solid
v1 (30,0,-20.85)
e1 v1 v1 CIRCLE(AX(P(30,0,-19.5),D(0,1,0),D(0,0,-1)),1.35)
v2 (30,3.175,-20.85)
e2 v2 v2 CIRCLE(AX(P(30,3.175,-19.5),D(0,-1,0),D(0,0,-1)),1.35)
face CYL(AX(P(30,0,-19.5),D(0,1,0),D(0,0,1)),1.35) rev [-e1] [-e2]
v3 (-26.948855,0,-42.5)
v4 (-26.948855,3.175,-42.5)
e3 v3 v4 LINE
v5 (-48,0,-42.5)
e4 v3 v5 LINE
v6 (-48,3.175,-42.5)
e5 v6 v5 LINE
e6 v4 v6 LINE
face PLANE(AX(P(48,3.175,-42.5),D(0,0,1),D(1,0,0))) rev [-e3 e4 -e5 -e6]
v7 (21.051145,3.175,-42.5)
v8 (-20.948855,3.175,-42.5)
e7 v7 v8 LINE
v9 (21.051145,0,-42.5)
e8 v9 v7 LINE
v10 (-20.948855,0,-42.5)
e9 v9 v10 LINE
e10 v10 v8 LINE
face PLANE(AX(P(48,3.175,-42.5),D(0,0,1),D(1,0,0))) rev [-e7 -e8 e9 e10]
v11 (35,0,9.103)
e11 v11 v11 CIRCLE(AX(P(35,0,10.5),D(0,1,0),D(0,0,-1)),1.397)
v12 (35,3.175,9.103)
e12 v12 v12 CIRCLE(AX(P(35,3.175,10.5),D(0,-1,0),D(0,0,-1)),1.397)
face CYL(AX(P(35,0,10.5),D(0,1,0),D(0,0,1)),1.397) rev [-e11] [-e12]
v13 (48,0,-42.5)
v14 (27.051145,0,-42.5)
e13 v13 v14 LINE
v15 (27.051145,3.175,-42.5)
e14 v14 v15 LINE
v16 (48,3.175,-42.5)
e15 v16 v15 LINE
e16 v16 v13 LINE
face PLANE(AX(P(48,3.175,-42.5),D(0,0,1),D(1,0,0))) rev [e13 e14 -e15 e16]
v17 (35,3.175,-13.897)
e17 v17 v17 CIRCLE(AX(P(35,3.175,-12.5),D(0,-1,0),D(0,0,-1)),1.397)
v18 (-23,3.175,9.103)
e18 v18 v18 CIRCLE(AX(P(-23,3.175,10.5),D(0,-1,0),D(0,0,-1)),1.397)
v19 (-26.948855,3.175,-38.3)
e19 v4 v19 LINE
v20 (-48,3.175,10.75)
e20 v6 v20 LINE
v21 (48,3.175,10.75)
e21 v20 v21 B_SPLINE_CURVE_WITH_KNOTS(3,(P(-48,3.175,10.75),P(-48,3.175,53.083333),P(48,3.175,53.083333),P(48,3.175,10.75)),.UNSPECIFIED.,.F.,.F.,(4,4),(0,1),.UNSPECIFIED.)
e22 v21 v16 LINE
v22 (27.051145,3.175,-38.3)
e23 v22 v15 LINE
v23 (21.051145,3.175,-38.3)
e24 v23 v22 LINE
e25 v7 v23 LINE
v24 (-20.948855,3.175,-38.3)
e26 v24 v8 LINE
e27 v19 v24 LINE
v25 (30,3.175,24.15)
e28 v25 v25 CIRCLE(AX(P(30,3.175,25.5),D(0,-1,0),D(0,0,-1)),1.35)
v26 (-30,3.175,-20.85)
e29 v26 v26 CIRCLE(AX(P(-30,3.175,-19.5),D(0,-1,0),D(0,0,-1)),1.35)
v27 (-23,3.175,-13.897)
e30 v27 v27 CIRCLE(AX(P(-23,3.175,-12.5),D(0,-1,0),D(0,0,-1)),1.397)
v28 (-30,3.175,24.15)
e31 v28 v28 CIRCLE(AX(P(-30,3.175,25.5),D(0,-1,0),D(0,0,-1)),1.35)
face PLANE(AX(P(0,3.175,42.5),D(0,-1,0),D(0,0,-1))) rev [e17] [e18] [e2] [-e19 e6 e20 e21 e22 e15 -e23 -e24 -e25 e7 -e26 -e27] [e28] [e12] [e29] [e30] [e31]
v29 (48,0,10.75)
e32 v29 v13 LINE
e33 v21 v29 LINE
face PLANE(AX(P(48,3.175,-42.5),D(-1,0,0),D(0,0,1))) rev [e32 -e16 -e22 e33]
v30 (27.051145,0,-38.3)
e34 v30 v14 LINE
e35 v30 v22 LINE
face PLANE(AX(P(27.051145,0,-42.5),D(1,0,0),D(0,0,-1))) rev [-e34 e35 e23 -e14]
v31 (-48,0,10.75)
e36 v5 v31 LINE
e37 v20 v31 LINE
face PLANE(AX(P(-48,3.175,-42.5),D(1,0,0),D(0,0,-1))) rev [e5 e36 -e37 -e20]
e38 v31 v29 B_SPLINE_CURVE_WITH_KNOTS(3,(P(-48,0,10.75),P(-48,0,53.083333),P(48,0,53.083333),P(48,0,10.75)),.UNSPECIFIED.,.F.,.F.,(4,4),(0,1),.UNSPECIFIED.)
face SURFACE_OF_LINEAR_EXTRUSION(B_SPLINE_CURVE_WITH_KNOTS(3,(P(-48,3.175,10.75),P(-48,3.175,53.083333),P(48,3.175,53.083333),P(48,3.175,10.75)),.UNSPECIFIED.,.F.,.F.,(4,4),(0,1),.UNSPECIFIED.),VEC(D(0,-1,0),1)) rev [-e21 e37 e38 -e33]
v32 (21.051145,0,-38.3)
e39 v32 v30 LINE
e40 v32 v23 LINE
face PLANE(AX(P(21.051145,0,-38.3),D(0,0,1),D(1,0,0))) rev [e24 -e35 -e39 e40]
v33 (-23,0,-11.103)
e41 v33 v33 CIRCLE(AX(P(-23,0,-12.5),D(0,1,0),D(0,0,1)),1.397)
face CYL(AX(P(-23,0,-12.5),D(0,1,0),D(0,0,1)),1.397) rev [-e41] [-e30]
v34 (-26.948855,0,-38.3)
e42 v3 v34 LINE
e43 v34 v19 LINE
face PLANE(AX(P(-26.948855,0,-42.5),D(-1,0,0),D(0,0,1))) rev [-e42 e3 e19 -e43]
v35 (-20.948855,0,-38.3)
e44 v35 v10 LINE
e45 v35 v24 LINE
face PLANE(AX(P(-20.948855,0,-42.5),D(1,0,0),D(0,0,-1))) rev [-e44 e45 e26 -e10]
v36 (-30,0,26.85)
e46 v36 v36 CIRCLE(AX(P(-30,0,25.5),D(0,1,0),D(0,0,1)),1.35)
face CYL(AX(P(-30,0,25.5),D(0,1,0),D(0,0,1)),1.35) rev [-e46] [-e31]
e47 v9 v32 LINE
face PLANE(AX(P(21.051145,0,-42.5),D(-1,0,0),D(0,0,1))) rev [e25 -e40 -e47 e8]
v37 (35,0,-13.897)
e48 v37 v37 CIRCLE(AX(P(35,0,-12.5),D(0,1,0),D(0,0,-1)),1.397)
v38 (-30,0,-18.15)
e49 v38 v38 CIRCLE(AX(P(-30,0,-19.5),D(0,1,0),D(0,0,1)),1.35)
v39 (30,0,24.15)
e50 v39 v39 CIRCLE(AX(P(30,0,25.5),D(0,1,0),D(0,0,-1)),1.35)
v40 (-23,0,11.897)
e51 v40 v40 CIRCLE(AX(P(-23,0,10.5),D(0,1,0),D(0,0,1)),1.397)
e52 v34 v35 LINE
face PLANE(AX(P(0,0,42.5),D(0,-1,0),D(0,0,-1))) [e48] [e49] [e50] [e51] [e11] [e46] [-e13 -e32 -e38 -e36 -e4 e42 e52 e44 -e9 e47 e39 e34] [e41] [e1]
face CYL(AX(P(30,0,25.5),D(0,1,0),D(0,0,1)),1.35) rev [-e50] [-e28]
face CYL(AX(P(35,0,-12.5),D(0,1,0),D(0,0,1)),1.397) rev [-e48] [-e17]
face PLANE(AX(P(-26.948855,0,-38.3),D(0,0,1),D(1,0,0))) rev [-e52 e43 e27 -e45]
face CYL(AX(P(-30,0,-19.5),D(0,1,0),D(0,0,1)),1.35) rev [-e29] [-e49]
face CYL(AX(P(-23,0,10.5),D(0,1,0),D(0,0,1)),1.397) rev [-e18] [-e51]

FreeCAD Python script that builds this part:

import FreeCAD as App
import Part
import Sketcher
from FreeCAD import Vector

doc = App.newDocument("Part")
body = doc.addObject("PartDesign::Body", "Body")

# Sketch on XZ plane
sketch1 = body.newObject("Sketcher::SketchObject", "Sketch")
sketch1.AttachmentSupport = (doc.getObject("XZ_Plane"), [""])
sketch1.MapMode = "FlatFace"
sketch1.addGeometry(Part.LineSegment(Vector(48, -42.5, 0), Vector(-48, -42.5, 0)), False)
sketch1.addGeometry(Part.LineSegment(Vector(-48, -42.5, 0), Vector(-48, 10.75, 0)), False)
sketch1.addGeometry(Part.BSplineCurve([Vector(-48, 10.75, 0), Vector(-48, 53.083333, 0), Vector(48, 53.083333, 0), Vector(48, 10.75, 0)], [4, 4], [0, 1], False, 3, [1, 1, 1, 1], False), False)
sketch1.addGeometry(Part.LineSegment(Vector(48, 10.75, 0), Vector(48, -42.5, 0)), False)
sketch1.addConstraint(Sketcher.Constraint("Block", 2))
sketch1.addConstraint(Sketcher.Constraint("Coincident", 0, 2, 1, 1))
sketch1.addConstraint(Sketcher.Constraint("Coincident", 1, 2, 2, 1))
sketch1.addConstraint(Sketcher.Constraint("Coincident", 2, 2, 3, 1))
sketch1.addConstraint(Sketcher.Constraint("Coincident", 3, 2, 0, 1))
sketch1.addConstraint(Sketcher.Constraint("Horizontal", 0))
sketch1.addConstraint(Sketcher.Constraint("Vertical", 1))
sketch1.addConstraint(Sketcher.Constraint("Vertical", 3))
sketch1.addConstraint(Sketcher.Constraint("DistanceY", 1, 1, 1, 2, 53.25))
pad1 = body.newObject("PartDesign::Pad", "Pad")
pad1.Profile = sketch1
pad1.Length = 3.175
pad1.Reversed = True

# Sketch on XZ plane
sketch2 = body.newObject("Sketcher::SketchObject", "Sketch001")
sketch2.AttachmentSupport = (doc.getObject("XZ_Plane"), [""])
sketch2.MapMode = "FlatFace"
sketch2.AttachmentOffset = App.Placement(Vector(0, 0, -3.175), App.Rotation())
sketch2.addGeometry(Part.Circle(Vector(-30, -19.5, 0), Vector(0, 0, 1), 1.4), False)
sketch2.addGeometry(Part.Circle(Vector(-30, 25.5, 0), Vector(0, 0, 1), 1.4), False)
sketch2.addGeometry(Part.Circle(Vector(30, 25.5, 0), Vector(0, 0, 1), 1.4), False)
sketch2.addGeometry(Part.Circle(Vector(30, -19.5, 0), Vector(0, 0, 1), 1.4), False)
sketch2.addGeometry(Part.Circle(Vector(-23, -12.5, 0), Vector(0, 0, 1), 1.4), False)
sketch2.addGeometry(Part.Circle(Vector(-23, 10.5, 0), Vector(0, 0, 1), 1.4), False)
sketch2.addGeometry(Part.Circle(Vector(35, 10.5, 0), Vector(0, 0, 1), 1.4), False)
sketch2.addGeometry(Part.Circle(Vector(35, -12.5, 0), Vector(0, 0, 1), 1.4), False)
sketch2.addConstraint(Sketcher.Constraint("Equal", 0, 1))
sketch2.addConstraint(Sketcher.Constraint("Equal", 1, 2))
sketch2.addConstraint(Sketcher.Constraint("Equal", 2, 3))
sketch2.addConstraint(Sketcher.Constraint("Equal", 4, 5))
sketch2.addConstraint(Sketcher.Constraint("Equal", 5, 6))
sketch2.addConstraint(Sketcher.Constraint("Equal", 6, 7))
sketch2.addConstraint(Sketcher.Constraint("Symmetric", 1, 3, 2, 3, -2))
sketch2.addConstraint(Sketcher.Constraint("Symmetric", 0, 3, 3, 3, -2))
sketch2.addConstraint(Sketcher.Constraint("Horizontal", 5, 3, 6, 3))
sketch2.addConstraint(Sketcher.Constraint("Horizontal", 4, 3, 7, 3))
sketch2.addConstraint(Sketcher.Constraint("Vertical", 0, 3, 1, 3))
sketch2.addConstraint(Sketcher.Constraint("Vertical", 4, 3, 5, 3))
sketch2.addConstraint(Sketcher.Constraint("Vertical", 6, 3, 7, 3))
sketch2.addConstraint(Sketcher.Constraint("Diameter", 0, 2.7))
sketch2.addConstraint(Sketcher.Constraint("Diameter", 4, 2.794))
sketch2.addConstraint(Sketcher.Constraint("DistanceX", 0, 3, -1, 1, 30.0))
sketch2.addConstraint(Sketcher.Constraint("DistanceX", 4, 3, -1, 1, 23.0))
sketch2.addConstraint(Sketcher.Constraint("DistanceX", -1, 1, 6, 3, 35.0))
sketch2.addConstraint(Sketcher.Constraint("DistanceY", 0, 3, 1, 3, 45.0))
sketch2.addConstraint(Sketcher.Constraint("DistanceY", 0, 3, 4, 3, 7.0))
sketch2.addConstraint(Sketcher.Constraint("DistanceY", 5, 3, 1, 3, 15.0))
sketch2.addConstraint(Sketcher.Constraint("DistanceY", 0, 3, -1, 1, 19.5))
pocket1 = body.newObject("PartDesign::Pocket", "Pocket")
pocket1.Profile = sketch2
pocket1.Type = "ThroughAll"
pocket1.Midplane = True

# Sketch on XZ plane
sketch3 = body.newObject("Sketcher::SketchObject", "Sketch002")
sketch3.AttachmentSupport = (doc.getObject("XZ_Plane"), [""])
sketch3.MapMode = "FlatFace"
sketch3.AttachmentOffset = App.Placement(Vector(0, 0, -3.175), App.Rotation())
sketch3.addGeometry(Part.LineSegment(Vector(21.1, -42.5, 0), Vector(21.1, -38.3, 0)), False)
sketch3.addGeometry(Part.LineSegment(Vector(21.1, -38.3, 0), Vector(27.1, -38.3, 0)), False)
sketch3.addGeometry(Part.LineSegment(Vector(27.1, -38.3, 0), Vector(27.1, -42.5, 0)), False)
sketch3.addGeometry(Part.LineSegment(Vector(27.1, -42.5, 0), Vector(21.1, -42.5, 0)), False)
sketch3.addGeometry(Part.LineSegment(Vector(-26.9, -42.5, 0), Vector(-26.9, -38.3, 0)), False)
sketch3.addGeometry(Part.LineSegment(Vector(-26.9, -38.3, 0), Vector(-20.9, -38.3, 0)), False)
sketch3.addGeometry(Part.LineSegment(Vector(-20.9, -38.3, 0), Vector(-20.9, -42.5, 0)), False)
sketch3.addGeometry(Part.LineSegment(Vector(-20.9, -42.5, 0), Vector(-26.9, -42.5, 0)), False)
sketch3.addConstraint(Sketcher.Constraint("Coincident", 0, 2, 1, 1))
sketch3.addConstraint(Sketcher.Constraint("Coincident", 1, 2, 2, 1))
sketch3.addConstraint(Sketcher.Constraint("Coincident", 2, 2, 3, 1))
sketch3.addConstraint(Sketcher.Constraint("Coincident", 3, 2, 0, 1))
sketch3.addConstraint(Sketcher.Constraint("Coincident", 4, 2, 5, 1))
sketch3.addConstraint(Sketcher.Constraint("Coincident", 5, 2, 6, 1))
sketch3.addConstraint(Sketcher.Constraint("Coincident", 6, 2, 7, 1))
sketch3.addConstraint(Sketcher.Constraint("Coincident", 7, 2, 4, 1))
sketch3.addConstraint(Sketcher.Constraint("Vertical", 0))
sketch3.addConstraint(Sketcher.Constraint("Horizontal", 1))
sketch3.addConstraint(Sketcher.Constraint("Vertical", 2))
sketch3.addConstraint(Sketcher.Constraint("Horizontal", 3))
sketch3.addConstraint(Sketcher.Constraint("Vertical", 4))
sketch3.addConstraint(Sketcher.Constraint("Horizontal", 5))
sketch3.addConstraint(Sketcher.Constraint("Vertical", 6))
sketch3.addConstraint(Sketcher.Constraint("Horizontal", 7))
sketch3.addConstraint(Sketcher.Constraint("Horizontal", 1, 2, 4, 2))
sketch3.addConstraint(Sketcher.Constraint("Horizontal", 3, 2, 6, 2))
sketch3.addConstraint(Sketcher.Constraint("Equal", 3, 5))
sketch3.addConstraint(Sketcher.Constraint("DistanceX", 1, 1, 1, 2, 6.0))
sketch3.addConstraint(Sketcher.Constraint("DistanceY", 0, 1, 0, 2, 4.2))
sketch3.addConstraint(Sketcher.Constraint("DistanceX", 4, 2, 0, 2, 48.0))
sketch3.addConstraint(Sketcher.Constraint("DistanceY", 0, 2, -1, 1, 38.3))
sketch3.addConstraint(Sketcher.Constraint("DistanceX", -1, 1, 0, 2, 21.051145))
pocket2 = body.newObject("PartDesign::Pocket", "Pocket001")
pocket2.Profile = sketch3
pocket2.Type = "ThroughAll"
pocket2.Reversed = True

doc.recompute()
